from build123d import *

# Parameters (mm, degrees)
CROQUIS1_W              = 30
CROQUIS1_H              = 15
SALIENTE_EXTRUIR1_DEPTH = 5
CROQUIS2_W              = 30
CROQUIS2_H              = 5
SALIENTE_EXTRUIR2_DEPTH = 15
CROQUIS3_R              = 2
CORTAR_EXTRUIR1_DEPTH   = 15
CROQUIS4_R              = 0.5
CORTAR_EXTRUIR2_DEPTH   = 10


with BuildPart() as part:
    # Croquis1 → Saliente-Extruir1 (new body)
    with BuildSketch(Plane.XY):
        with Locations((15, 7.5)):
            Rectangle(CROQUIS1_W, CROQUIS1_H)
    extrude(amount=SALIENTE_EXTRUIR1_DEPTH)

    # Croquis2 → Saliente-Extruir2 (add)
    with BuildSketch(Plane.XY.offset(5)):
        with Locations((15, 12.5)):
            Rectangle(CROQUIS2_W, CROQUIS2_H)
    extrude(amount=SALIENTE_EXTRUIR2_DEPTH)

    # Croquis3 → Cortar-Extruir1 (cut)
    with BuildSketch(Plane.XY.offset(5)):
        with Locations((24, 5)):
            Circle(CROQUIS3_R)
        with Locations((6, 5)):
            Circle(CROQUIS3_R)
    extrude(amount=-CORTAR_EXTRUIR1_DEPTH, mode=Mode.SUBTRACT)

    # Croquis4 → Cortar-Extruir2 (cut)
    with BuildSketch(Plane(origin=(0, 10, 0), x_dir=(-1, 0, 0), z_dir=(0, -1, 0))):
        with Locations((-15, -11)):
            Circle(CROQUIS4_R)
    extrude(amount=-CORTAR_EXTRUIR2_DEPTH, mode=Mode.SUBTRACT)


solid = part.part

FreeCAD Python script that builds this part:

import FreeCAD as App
import Part
import Sketcher
Q = App.Units.Quantity

doc = App.newDocument("Part")
body = doc.addObject("PartDesign::Body", "Body")

# Sketch on XY plane
sketch1 = body.newObject("Sketcher::SketchObject", "Sketch")
sketch1.AttachmentSupport = (doc.getObject("XY_Plane"), [""])
sketch1.MapMode = "FlatFace"
sketch1.addGeometry(Part.LineSegment(App.Vector(0, 15, 0), App.Vector(0, 0, 0)), False)
sketch1.addGeometry(Part.LineSegment(App.Vector(0, 0, 0), App.Vector(30, 0, 0)), False)
sketch1.addGeometry(Part.LineSegment(App.Vector(30, 0, 0), App.Vector(30, 15, 0)), False)
sketch1.addGeometry(Part.LineSegment(App.Vector(30, 15, 0), App.Vector(0, 15, 0)), False)
sketch1.addConstraint(Sketcher.Constraint("Coincident", 0, 2, 1, 1))
sketch1.addConstraint(Sketcher.Constraint("Coincident", 1, 2, 2, 1))
sketch1.addConstraint(Sketcher.Constraint("Coincident", 2, 2, 3, 1))
sketch1.addConstraint(Sketcher.Constraint("Coincident", 3, 2, 0, 1))
sketch1.addConstraint(Sketcher.Constraint("Vertical", 0))
sketch1.addConstraint(Sketcher.Constraint("Horizontal", 1))
sketch1.addConstraint(Sketcher.Constraint("Vertical", 2))
sketch1.addConstraint(Sketcher.Constraint("Horizontal", 3))
sketch1.addConstraint(Sketcher.Constraint("Coincident", 0, 2, -1, 1))
sketch1.addConstraint(Sketcher.Constraint("DistanceX", 1, 1, 1, 2, Q("30 mm")))
sketch1.addConstraint(Sketcher.Constraint("DistanceY", 0, 2, 0, 1, Q("15 mm")))
pad1 = body.newObject("PartDesign::Pad", "Pad")
pad1.Profile = sketch1
pad1.Length = 5

# Sketch on XY plane
sketch2 = body.newObject("Sketcher::SketchObject", "Sketch001")
sketch2.AttachmentSupport = (doc.getObject("XY_Plane"), [""])
sketch2.MapMode = "FlatFace"
sketch2.AttachmentOffset = App.Placement(App.Vector(0, 0, 5), App.Rotation())
sketch2.addGeometry(Part.LineSegment(App.Vector(0, 15, 0), App.Vector(0, 10, 0)), False)
sketch2.addGeometry(Part.LineSegment(App.Vector(0, 10, 0), App.Vector(30, 10, 0)), False)
sketch2.addGeometry(Part.LineSegment(App.Vector(30, 10, 0), App.Vector(30, 15, 0)), False)
sketch2.addGeometry(Part.LineSegment(App.Vector(30, 15, 0), App.Vector(0, 15, 0)), False)
sketch2.addConstraint(Sketcher.Constraint("Coincident", 0, 2, 1, 1))
sketch2.addConstraint(Sketcher.Constraint("Coincident", 1, 2, 2, 1))
sketch2.addConstraint(Sketcher.Constraint("Coincident", 2, 2, 3, 1))
sketch2.addConstraint(Sketcher.Constraint("Coincident", 3, 2, 0, 1))
sketch2.addConstraint(Sketcher.Constraint("Vertical", 0))
sketch2.addConstraint(Sketcher.Constraint("Horizontal", 1))
sketch2.addConstraint(Sketcher.Constraint("Vertical", 2))
sketch2.addConstraint(Sketcher.Constraint("Horizontal", 3))
sketch2.addConstraint(Sketcher.Constraint("PointOnObject", 0, 2, -2))
sketch2.addConstraint(Sketcher.Constraint("DistanceX", 1, 1, 1, 2, Q("30 mm")))
sketch2.addConstraint(Sketcher.Constraint("DistanceY", 0, 2, 0, 1, Q("5 mm")))
sketch2.addConstraint(Sketcher.Constraint("DistanceY", -1, 1, 0, 2, Q("10 mm")))
pad2 = body.newObject("PartDesign::Pad", "Pad001")
pad2.Profile = sketch2
pad2.Length = 15

# Sketch on XY plane
sketch3 = body.newObject("Sketcher::SketchObject", "Sketch002")
sketch3.AttachmentSupport = (doc.getObject("XY_Plane"), [""])
sketch3.MapMode = "FlatFace"
sketch3.AttachmentOffset = App.Placement(App.Vector(0, 0, 5), App.Rotation())
sketch3.addGeometry(Part.Circle(App.Vector(24, 5, 0), App.Vector(0, 0, 1), 2), False)
sketch3.addGeometry(Part.Circle(App.Vector(6, 5, 0), App.Vector(0, 0, 1), 2), False)
sketch3.addConstraint(Sketcher.Constraint("Equal", 0, 1))
sketch3.addConstraint(Sketcher.Constraint("Horizontal", 0, 3, 1, 3))
sketch3.addConstraint(Sketcher.Constraint("Diameter", 0, Q("4 mm")))
sketch3.addConstraint(Sketcher.Constraint("DistanceX", -1, 1, 0, 3, Q("24 mm")))
sketch3.addConstraint(Sketcher.Constraint("DistanceY", -1, 1, 0, 3, Q("5 mm")))
sketch3.addConstraint(Sketcher.Constraint("DistanceX", -1, 1, 1, 3, Q("6 mm")))
pocket1 = body.newObject("PartDesign::Pocket", "Pocket")
pocket1.Profile = sketch3
pocket1.Length = 15

# Sketch on XZ plane
sketch4 = body.newObject("Sketcher::SketchObject", "Sketch003")
sketch4.AttachmentSupport = (doc.getObject("XZ_Plane"), [""])
sketch4.MapMode = "FlatFace"
sketch4.AttachmentOffset = App.Placement(App.Vector(0, 0, -10), App.Rotation())
sketch4.addGeometry(Part.Circle(App.Vector(15, 11, 0), App.Vector(0, 0, 1), 0.5), False)
sketch4.addConstraint(Sketcher.Constraint("Diameter", 0, Q("1 mm")))
sketch4.addConstraint(Sketcher.Constraint("DistanceX", -1, 1, 0, 3, Q("15 mm")))
sketch4.addConstraint(Sketcher.Constraint("DistanceY", -1, 1, 0, 3, Q("11 mm")))
pocket2 = body.newObject("PartDesign::Pocket", "Pocket001")
pocket2.Profile = sketch4
pocket2.Length = 10

doc.recompute()
